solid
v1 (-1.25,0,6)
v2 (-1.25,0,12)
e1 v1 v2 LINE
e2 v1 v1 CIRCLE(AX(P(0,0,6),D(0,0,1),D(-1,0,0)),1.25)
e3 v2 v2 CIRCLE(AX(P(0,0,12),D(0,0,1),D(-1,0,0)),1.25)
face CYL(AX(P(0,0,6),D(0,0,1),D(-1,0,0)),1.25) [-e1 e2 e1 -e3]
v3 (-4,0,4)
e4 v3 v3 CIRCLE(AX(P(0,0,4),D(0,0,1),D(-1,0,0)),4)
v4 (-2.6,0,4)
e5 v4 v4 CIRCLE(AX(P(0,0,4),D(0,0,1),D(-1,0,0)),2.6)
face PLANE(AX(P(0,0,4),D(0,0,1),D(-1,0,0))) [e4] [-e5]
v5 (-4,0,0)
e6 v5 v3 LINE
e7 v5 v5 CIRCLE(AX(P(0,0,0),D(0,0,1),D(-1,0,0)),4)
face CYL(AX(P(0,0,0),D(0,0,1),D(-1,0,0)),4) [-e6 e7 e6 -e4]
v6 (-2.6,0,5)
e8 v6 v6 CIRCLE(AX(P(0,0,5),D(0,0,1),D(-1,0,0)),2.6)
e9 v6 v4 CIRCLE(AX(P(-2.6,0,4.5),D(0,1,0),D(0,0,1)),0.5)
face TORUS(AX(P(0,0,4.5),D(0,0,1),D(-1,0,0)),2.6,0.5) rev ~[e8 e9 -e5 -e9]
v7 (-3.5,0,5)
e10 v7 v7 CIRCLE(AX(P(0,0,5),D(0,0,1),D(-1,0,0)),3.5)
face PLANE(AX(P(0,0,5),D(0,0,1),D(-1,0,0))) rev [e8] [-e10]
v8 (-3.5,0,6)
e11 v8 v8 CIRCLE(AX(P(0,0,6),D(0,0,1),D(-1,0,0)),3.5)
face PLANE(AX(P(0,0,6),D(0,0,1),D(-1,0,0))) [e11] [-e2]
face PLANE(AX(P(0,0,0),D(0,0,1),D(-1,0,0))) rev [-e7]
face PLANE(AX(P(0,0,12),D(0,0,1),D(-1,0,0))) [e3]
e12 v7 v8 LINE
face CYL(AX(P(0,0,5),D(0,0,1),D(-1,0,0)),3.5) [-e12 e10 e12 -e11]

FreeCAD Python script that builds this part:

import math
import FreeCAD as App
import Part
import Sketcher

doc = App.newDocument("Part")
body = doc.addObject("PartDesign::Body", "Body")

# Sketch on XZ plane
sketch1 = doc.addObject("Sketcher::SketchObject", "Sketch")
body.addObject(sketch1)
sketch1.AttachmentSupport = (doc.XZ_Plane, [""])
sketch1.MapMode = "FlatFace"
sketch1.addGeometry([
    Part.LineSegment(App.Vector(0, 12, 0), App.Vector(0, 0, 0)),  # 0
    Part.LineSegment(App.Vector(0, 0, 0), App.Vector(-4, 0, 0)),  # 1
    Part.LineSegment(App.Vector(-4, 0, 0), App.Vector(-4, 4, 0)),  # 2
    Part.LineSegment(App.Vector(-4, 4, 0), App.Vector(-2.6, 4, 0)),  # 3
    Part.ArcOfCircle(Part.Circle(App.Vector(-2.6, 4.5, 0), App.Vector(0, 0, 1), 0.5), math.radians(-90), math.radians(90)),  # 4
    Part.LineSegment(App.Vector(-2.6, 5, 0), App.Vector(-3.5, 5, 0)),  # 5
    Part.LineSegment(App.Vector(-3.5, 5, 0), App.Vector(-3.5, 6, 0)),  # 6
    Part.LineSegment(App.Vector(-3.5, 6, 0), App.Vector(-1.2, 6, 0)),  # 7
    Part.LineSegment(App.Vector(-1.2, 6, 0), App.Vector(-1.2, 12, 0)),  # 8
    Part.LineSegment(App.Vector(-1.2, 12, 0), App.Vector(0, 12, 0)),  # 9
], False)
sketch1.addConstraint([
    Sketcher.Constraint("Coincident", 0, 2, 1, 1),
    Sketcher.Constraint("Coincident", 1, 2, 2, 1),
    Sketcher.Constraint("Coincident", 2, 2, 3, 1),
    Sketcher.Constraint("Tangent", 3, 2, 4, 1),
    Sketcher.Constraint("Tangent", 4, 2, 5, 1),
    Sketcher.Constraint("Coincident", 5, 2, 6, 1),
    Sketcher.Constraint("Coincident", 6, 2, 7, 1),
    Sketcher.Constraint("Coincident", 7, 2, 8, 1),
    Sketcher.Constraint("Coincident", 8, 2, 9, 1),
    Sketcher.Constraint("Coincident", 9, 2, 0, 1),
    Sketcher.Constraint("Vertical", 0),
    Sketcher.Constraint("Horizontal", 1),
    Sketcher.Constraint("Vertical", 2),
    Sketcher.Constraint("Horizontal", 3),
    Sketcher.Constraint("Horizontal", 5),
    Sketcher.Constraint("Vertical", 6),
    Sketcher.Constraint("Horizontal", 7),
    Sketcher.Constraint("Vertical", 8),
    Sketcher.Constraint("Horizontal", 9),
    Sketcher.Constraint("Coincident", 0, 2, -1, 1),
    Sketcher.Constraint("Equal", 1, 2),
    Sketcher.Constraint("Radius", 4, 0.5),
    Sketcher.Constraint("DistanceX", 1, 2, 1, 1, 4.0),
    Sketcher.Constraint("DistanceY", 6, 1, 6, 2, 1.0),
    Sketcher.Constraint("DistanceY", 8, 1, 8, 2, 6.0),
    Sketcher.Constraint("DistanceX", 9, 1, 9, 2, 1.25),
    Sketcher.Constraint("DistanceX", 5, 2, -1, 1, 3.5),
    Sketcher.Constraint("DistanceX", 3, 1, 3, 2, 1.4),
])
revolution = doc.addObject("PartDesign::Revolution", "Revolution")
body.addObject(revolution)
revolution.Profile = sketch1
revolution.ReferenceAxis = (sketch1, ["V_Axis"])
revolution.Angle = 360

doc.recompute()
